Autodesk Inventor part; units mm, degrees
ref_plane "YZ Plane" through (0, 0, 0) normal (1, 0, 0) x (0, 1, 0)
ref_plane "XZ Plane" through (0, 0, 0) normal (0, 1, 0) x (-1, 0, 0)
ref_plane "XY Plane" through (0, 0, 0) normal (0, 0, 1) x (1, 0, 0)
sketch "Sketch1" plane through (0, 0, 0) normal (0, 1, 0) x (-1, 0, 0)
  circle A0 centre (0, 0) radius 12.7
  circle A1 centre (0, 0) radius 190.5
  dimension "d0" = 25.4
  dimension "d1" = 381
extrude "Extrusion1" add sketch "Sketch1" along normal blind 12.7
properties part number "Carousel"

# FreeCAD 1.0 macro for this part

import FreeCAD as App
import Part
import Sketcher

V = App.Vector
Q = App.Units.Quantity

doc = App.newDocument("Part")
body = doc.addObject("PartDesign::Body", "Body")

sketch1 = body.newObject("Sketcher::SketchObject", "Sketch")
sketch1.AttachmentSupport = (doc.getObject("XZ_Plane"), [""])
sketch1.MapMode = "FlatFace"
sketch1.addGeometry([
    Part.Circle(V(0, 0, 0), V(0, 0, 1), 190),
    Part.Circle(V(0, 0, 0), V(0, 0, 1), 13),
], False)
sketch1.addConstraint([
    Sketcher.Constraint("Coincident", 0, 3, -1, 1),
    Sketcher.Constraint("Coincident", 1, 3, -1, 1),
    Sketcher.Constraint("Diameter", 0, Q("15 in")),
    Sketcher.Constraint("Diameter", 1, Q("1 in")),
])
pad1 = body.newObject("PartDesign::Pad", "Pad")
pad1.Profile = sketch1
pad1.Length = Q("0.5 in")
pad1.Reversed = True

doc.recompute()
